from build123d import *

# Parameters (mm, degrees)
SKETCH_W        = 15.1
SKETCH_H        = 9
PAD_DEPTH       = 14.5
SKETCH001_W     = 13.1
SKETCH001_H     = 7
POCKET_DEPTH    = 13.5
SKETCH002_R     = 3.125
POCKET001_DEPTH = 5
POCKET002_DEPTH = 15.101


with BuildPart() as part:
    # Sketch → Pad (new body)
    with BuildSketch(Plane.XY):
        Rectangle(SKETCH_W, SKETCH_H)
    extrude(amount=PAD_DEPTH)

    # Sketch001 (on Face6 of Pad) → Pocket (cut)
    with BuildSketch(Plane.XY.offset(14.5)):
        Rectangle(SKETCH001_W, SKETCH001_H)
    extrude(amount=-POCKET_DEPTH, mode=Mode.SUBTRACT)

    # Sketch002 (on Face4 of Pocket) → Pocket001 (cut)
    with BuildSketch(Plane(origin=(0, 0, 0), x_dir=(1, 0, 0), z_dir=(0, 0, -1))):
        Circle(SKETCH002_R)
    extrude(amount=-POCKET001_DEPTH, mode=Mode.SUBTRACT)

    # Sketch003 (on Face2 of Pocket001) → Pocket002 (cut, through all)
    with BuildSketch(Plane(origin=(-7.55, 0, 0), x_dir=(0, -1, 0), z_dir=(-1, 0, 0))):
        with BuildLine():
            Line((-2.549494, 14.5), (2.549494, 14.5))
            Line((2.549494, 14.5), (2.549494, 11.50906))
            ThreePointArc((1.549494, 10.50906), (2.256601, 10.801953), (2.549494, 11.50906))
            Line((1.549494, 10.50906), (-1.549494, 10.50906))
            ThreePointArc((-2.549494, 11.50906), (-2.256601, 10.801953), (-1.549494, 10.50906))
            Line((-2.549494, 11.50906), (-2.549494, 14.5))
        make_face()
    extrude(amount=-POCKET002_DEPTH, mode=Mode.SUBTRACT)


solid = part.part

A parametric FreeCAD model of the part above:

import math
import FreeCAD as App
import Part
import Sketcher
from FreeCAD import Vector

doc = App.newDocument("Part")
params = doc.addObject("Spreadsheet::Sheet", "Params")
for row, (alias, value) in enumerate([
    ("sketch1_height", "9 mm"),
    ("sketch1_width", "15.1 mm"),
    ("pad1_length", "14.5 mm"),
    ("sketch2_height", "7 mm"),
    ("sketch2_width", "13.1 mm"),
    ("pocket1_length", "13.5 mm"),
    ("sketch3_diameter", "6.25 mm"),
    ("pocket2_length", "5 mm"),
    ("sketch4_radius", "0.999999 mm"),
], start=1):
    params.set(f"A{row}", alias)
    params.set(f"B{row}", "=" + value)
    params.setAlias(f"B{row}", alias)

body = doc.addObject("PartDesign::Body", "Body")

# Sketch on XY plane
sketch1 = body.newObject("Sketcher::SketchObject", "Sketch")
sketch1.AttachmentSupport = (doc.getObject("XY_Plane"), [""])
sketch1.MapMode = "FlatFace"
sketch1.addGeometry([
    Part.LineSegment(Vector(-7.55, 4.5, 0), Vector(-7.55, -4.5, 0)),
    Part.LineSegment(Vector(-7.55, -4.5, 0), Vector(7.55, -4.5, 0)),
    Part.LineSegment(Vector(7.55, -4.5, 0), Vector(7.55, 4.5, 0)),
    Part.LineSegment(Vector(7.55, 4.5, 0), Vector(-7.55, 4.5, 0)),
], False)
sketch1.addConstraint([
    Sketcher.Constraint("Coincident", 0, 2, 1, 1),
    Sketcher.Constraint("Coincident", 1, 2, 2, 1),
    Sketcher.Constraint("Coincident", 2, 2, 3, 1),
    Sketcher.Constraint("Coincident", 3, 2, 0, 1),
    Sketcher.Constraint("Vertical", 0),
    Sketcher.Constraint("Horizontal", 1),
    Sketcher.Constraint("Vertical", 2),
    Sketcher.Constraint("Horizontal", 3),
    Sketcher.Constraint("Symmetric", 0, 2, 2, 2, -1, 1),
    Sketcher.Constraint("DistanceY", 0, 2, 0, 1, 9.0),
    Sketcher.Constraint("DistanceX", 1, 1, 1, 2, 15.1),
])
sketch1.setExpression("Constraints[9]", "Params.sketch1_height")
sketch1.setExpression("Constraints[10]", "Params.sketch1_width")
pad1 = body.newObject("PartDesign::Pad", "Pad")
pad1.Profile = sketch1
pad1.setExpression("Length", "Params.pad1_length")

# Sketch on XY plane
sketch2 = body.newObject("Sketcher::SketchObject", "Sketch001")
sketch2.AttachmentSupport = (doc.getObject("XY_Plane"), [""])
sketch2.MapMode = "FlatFace"
sketch2.AttachmentOffset = App.Placement(Vector(0, 0, 14.5), App.Rotation())
sketch2.addGeometry([
    Part.LineSegment(Vector(-6.55, 3.5, 0), Vector(-6.55, -3.5, 0)),
    Part.LineSegment(Vector(-6.55, -3.5, 0), Vector(6.55, -3.5, 0)),
    Part.LineSegment(Vector(6.55, -3.5, 0), Vector(6.55, 3.5, 0)),
    Part.LineSegment(Vector(6.55, 3.5, 0), Vector(-6.55, 3.5, 0)),
], False)
sketch2.addConstraint([
    Sketcher.Constraint("Coincident", 0, 2, 1, 1),
    Sketcher.Constraint("Coincident", 1, 2, 2, 1),
    Sketcher.Constraint("Coincident", 2, 2, 3, 1),
    Sketcher.Constraint("Coincident", 3, 2, 0, 1),
    Sketcher.Constraint("Vertical", 0),
    Sketcher.Constraint("Horizontal", 1),
    Sketcher.Constraint("Vertical", 2),
    Sketcher.Constraint("Horizontal", 3),
    Sketcher.Constraint("Symmetric", 0, 2, 2, 2, -1, 1),
    Sketcher.Constraint("DistanceY", 0, 2, 0, 1, 7.0),
    Sketcher.Constraint("DistanceX", 1, 1, 1, 2, 13.1),
])
sketch2.setExpression("Constraints[9]", "Params.sketch2_height")
sketch2.setExpression("Constraints[10]", "Params.sketch2_width")
pocket1 = body.newObject("PartDesign::Pocket", "Pocket")
pocket1.Profile = sketch2
pocket1.setExpression("Length", "Params.pocket1_length")

# Sketch on XY plane
sketch3 = body.newObject("Sketcher::SketchObject", "Sketch002")
sketch3.AttachmentSupport = (doc.getObject("XY_Plane"), [""])
sketch3.MapMode = "FlatFace"
sketch3.addGeometry(Part.Circle(Vector(0, 0, 0), Vector(0, 0, 1), 3.125), False)
sketch3.addConstraint([
    Sketcher.Constraint("Coincident", 0, 3, -1, 1),
    Sketcher.Constraint("Diameter", 0, 6.25),
])
sketch3.setExpression("Constraints[1]", "Params.sketch3_diameter")
pocket2 = body.newObject("PartDesign::Pocket", "Pocket001")
pocket2.Profile = sketch3
pocket2.setExpression("Length", "Params.pocket2_length")
pocket2.Reversed = True

# Sketch on YZ plane
sketch4 = body.newObject("Sketcher::SketchObject", "Sketch003")
sketch4.AttachmentSupport = (doc.getObject("YZ_Plane"), [""])
sketch4.MapMode = "FlatFace"
sketch4.AttachmentOffset = App.Placement(Vector(0, 0, -7.55), App.Rotation())
sketch4.addGeometry([
    Part.LineSegment(Vector(-2.549494, 14.5, 0), Vector(2.549494, 14.5, 0)),  # 0
    Part.LineSegment(Vector(2.549494, 14.5, 0), Vector(2.549494, 11.50906, 0)),  # 1
    Part.ArcOfCircle(Part.Circle(Vector(1.549495, 11.509059, 0), Vector(0, 0, 1), 0.999999), math.radians(-90.000043), math.radians(0.000043)),  # 2
    Part.LineSegment(Vector(1.549494, 10.50906, 0), Vector(-1.549494, 10.50906, 0)),  # 3
    Part.ArcOfCircle(Part.Circle(Vector(-1.549495, 11.509059, 0), Vector(0, 0, 1), 0.999999), math.radians(179.999957), math.radians(270.000043)),  # 4
    Part.LineSegment(Vector(-2.549494, 11.50906, 0), Vector(-2.549494, 14.5, 0)),  # 5
], False)
sketch4.addConstraint([
    Sketcher.Constraint("Coincident", 0, 2, 1, 1),
    Sketcher.Constraint("Tangent", 1, 2, 2, 2),
    Sketcher.Constraint("Tangent", 2, 1, 3, 1),
    Sketcher.Constraint("Tangent", 3, 2, 4, 2),
    Sketcher.Constraint("Tangent", 4, 1, 5, 1),
    Sketcher.Constraint("Coincident", 5, 2, 0, 1),
    Sketcher.Constraint("Horizontal", 0),
    Sketcher.Constraint("Vertical", 1),
    Sketcher.Constraint("Horizontal", 3),
    Sketcher.Constraint("Vertical", 5),
    Sketcher.Constraint("Equal", 2, 4),
    Sketcher.Constraint("Radius", 2, 0.999999),
    Sketcher.Constraint("DistanceY", -1, 1, 0, 2, 14.5),
    Sketcher.Constraint("DistanceX", 0, 1, 0, 2, 5.098988),
    Sketcher.Constraint("DistanceY", 1, 2, 1, 1, 2.99094),
    Sketcher.Constraint("DistanceX", -1, 1, 2, 3, 1.549495),
])
sketch4.setExpression("Constraints[11]", "Params.sketch4_radius")
pocket3 = body.newObject("PartDesign::Pocket", "Pocket002")
pocket3.Profile = sketch4
pocket3.Type = "ThroughAll"
pocket3.Reversed = True

doc.recompute()
